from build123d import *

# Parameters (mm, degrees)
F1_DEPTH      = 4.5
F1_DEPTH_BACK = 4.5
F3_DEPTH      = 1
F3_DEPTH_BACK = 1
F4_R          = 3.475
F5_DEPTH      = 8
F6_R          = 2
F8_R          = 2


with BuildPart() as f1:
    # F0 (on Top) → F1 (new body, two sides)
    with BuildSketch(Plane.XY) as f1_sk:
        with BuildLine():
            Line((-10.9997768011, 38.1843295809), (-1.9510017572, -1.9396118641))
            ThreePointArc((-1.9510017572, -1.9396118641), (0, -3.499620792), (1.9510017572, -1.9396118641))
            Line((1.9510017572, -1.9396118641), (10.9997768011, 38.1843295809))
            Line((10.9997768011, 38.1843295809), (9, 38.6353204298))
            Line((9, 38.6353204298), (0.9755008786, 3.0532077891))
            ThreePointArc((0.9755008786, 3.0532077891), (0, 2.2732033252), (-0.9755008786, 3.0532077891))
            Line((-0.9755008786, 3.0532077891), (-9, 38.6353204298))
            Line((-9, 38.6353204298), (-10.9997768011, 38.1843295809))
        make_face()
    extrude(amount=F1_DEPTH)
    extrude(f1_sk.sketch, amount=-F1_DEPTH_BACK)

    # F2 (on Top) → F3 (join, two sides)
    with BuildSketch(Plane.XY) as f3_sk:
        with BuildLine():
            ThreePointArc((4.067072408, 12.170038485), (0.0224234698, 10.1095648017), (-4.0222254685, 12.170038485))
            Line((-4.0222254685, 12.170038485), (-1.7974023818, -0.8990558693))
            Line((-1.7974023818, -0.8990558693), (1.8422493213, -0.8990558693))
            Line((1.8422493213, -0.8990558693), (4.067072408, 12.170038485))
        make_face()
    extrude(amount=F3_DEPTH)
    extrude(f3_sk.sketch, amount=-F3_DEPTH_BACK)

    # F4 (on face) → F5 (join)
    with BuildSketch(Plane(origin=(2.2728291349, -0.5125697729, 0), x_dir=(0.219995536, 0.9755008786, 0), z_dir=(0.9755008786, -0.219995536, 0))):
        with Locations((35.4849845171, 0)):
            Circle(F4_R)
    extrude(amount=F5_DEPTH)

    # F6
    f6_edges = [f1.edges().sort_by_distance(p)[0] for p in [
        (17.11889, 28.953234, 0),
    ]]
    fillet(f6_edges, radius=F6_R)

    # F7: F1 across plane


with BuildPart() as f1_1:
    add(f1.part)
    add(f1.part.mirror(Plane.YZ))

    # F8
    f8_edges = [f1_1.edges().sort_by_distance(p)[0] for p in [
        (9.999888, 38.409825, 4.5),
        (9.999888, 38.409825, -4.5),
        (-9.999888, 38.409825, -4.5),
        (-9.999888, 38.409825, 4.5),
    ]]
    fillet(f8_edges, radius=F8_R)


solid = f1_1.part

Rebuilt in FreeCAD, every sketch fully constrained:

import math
import FreeCAD as App
import Part
import Sketcher

V = App.Vector
Q = App.Units.Quantity


def edges_at(feature, points):
    """Names of the edges that pass closest to the given points."""
    edges = feature.Shape.Edges
    near = lambda p: min(range(len(edges)), key=lambda i: edges[i].distToShape(Part.Vertex(*p))[0])
    return sorted({f"Edge{near(p) + 1}" for p in points})

doc = App.newDocument("Part")
body = doc.addObject("PartDesign::Body", "Body")

# Sketch on XY plane
sketch1 = body.newObject("Sketcher::SketchObject", "Sketch")
sketch1.AttachmentSupport = (doc.getObject("XY_Plane"), [""])
sketch1.MapMode = "FlatFace"
sketch1.addGeometry([
    Part.LineSegment(V(-11, 38.2, 0), V(-2, -1.9, 0)),  # 0
    Part.ArcOfCircle(Part.Circle(V(0, -1.5, 0), V(0, 0, 1), 2), math.radians(-167), math.radians(-13)),  # 1
    Part.LineSegment(V(2, -1.9, 0), V(11, 38.2, 0)),  # 2
    Part.LineSegment(V(11, 38.2, 0), V(9, 38.6, 0)),  # 3
    Part.LineSegment(V(9, 38.6, 0), V(1, 3.1, 0)),  # 4
    Part.ArcOfCircle(Part.Circle(V(0, 3.3, 0), V(0, 0, 1), 1), math.radians(-167), math.radians(-13)),  # 5
    Part.LineSegment(V(-1, 3.1, 0), V(-9, 38.6, 0)),  # 6
    Part.LineSegment(V(-9, 38.6, 0), V(-11, 38.2, 0)),  # 7
], False)
sketch1.addConstraint([
    Sketcher.Constraint("Tangent", 0, 2, 1, 1),
    Sketcher.Constraint("Tangent", 1, 2, 2, 1),
    Sketcher.Constraint("Coincident", 2, 2, 3, 1),
    Sketcher.Constraint("Coincident", 3, 2, 4, 1),
    Sketcher.Constraint("Tangent", 4, 2, 5, 2),
    Sketcher.Constraint("Tangent", 5, 1, 6, 1),
    Sketcher.Constraint("Coincident", 6, 2, 7, 1),
    Sketcher.Constraint("Coincident", 7, 2, 0, 1),
    Sketcher.Constraint("Symmetric", 0, 2, 1, 2, -2),
    Sketcher.Constraint("Symmetric", 4, 2, 5, 1, -2),
    Sketcher.Constraint("Perpendicular", 2, 3),
    Sketcher.Constraint("Perpendicular", 3, 4),
    Sketcher.Constraint("Perpendicular", 6, 7),
    Sketcher.Constraint("Horizontal", 3, 2, 6, 2),
    Sketcher.Constraint("Radius", 1, Q("2 mm")),
    Sketcher.Constraint("Radius", 5, Q("1 mm")),
    Sketcher.Constraint("DistanceX", -1, 1, 3, 2, Q("9 mm")),
    Sketcher.Constraint("Distance", 3, Q("2.05 mm")),
    Sketcher.Constraint("Distance", 0, Q("41.13163 mm")),
    Sketcher.Constraint("DistanceY", 1, 3, -1, 1, Q("1.499621 mm")),
])
pad1 = body.newObject("PartDesign::Pad", "Pad")
pad1.Profile = sketch1
pad1.Type = "TwoLengths"
pad1.Length = 4.5
pad1.Length2 = 4.5

# Sketch on XY plane
sketch2 = body.newObject("Sketcher::SketchObject", "Sketch001")
sketch2.AttachmentSupport = (doc.getObject("XY_Plane"), [""])
sketch2.MapMode = "FlatFace"
sketch2.addGeometry([
    Part.ArcOfCircle(Part.Circle(V(0, 15.1, 0), V(0, 0, 1), 5), math.radians(-144), math.radians(-36)),
    Part.LineSegment(V(-4, 12.2, 0), V(-1.8, -0.9, 0)),
    Part.LineSegment(V(-1.8, -0.9, 0), V(1.8, -0.9, 0)),
    Part.LineSegment(V(1.8, -0.9, 0), V(4.1, 12.2, 0)),
], False)
sketch2.addConstraint([
    Sketcher.Constraint("Coincident", 0, 1, 1, 1),
    Sketcher.Constraint("Coincident", 1, 2, 2, 1),
    Sketcher.Constraint("Coincident", 2, 2, 3, 1),
    Sketcher.Constraint("Coincident", 3, 2, 0, 2),
    Sketcher.Constraint("Horizontal", 2),
    Sketcher.Constraint("Horizontal", 0, 1, 3, 2),
    Sketcher.Constraint("Equal", 1, 3),
    Sketcher.Constraint("Radius", 0, Q("5 mm")),
    Sketcher.Constraint("DistanceX", 2, 1, 2, 2, Q("3.639652 mm")),
    Sketcher.Constraint("DistanceY", -1, 1, 0, 1, Q("12.170038 mm")),
    Sketcher.Constraint("DistanceX", -1, 1, 2, 2, Q("1.842249 mm")),
    Sketcher.Constraint("DistanceX", 0, 1, 0, 3, Q("4.044649 mm")),
    Sketcher.Constraint("DistanceY", 1, 2, 0, 3, Q("16.008621 mm")),
])
pad2 = body.newObject("PartDesign::Pad", "Pad001")
pad2.Profile = sketch2
pad2.Type = "TwoLengths"
pad2.Length = 1
pad2.Length2 = 1

# Sketch on an angled plane
sketch3 = body.newObject("Sketcher::SketchObject", "Sketch002")
sketch3.Placement = App.Placement(V(2.272829, -0.51257, 0), App.Rotation(V(0.219995536, 0.975500879, 0), V(0, 0, 1.000000001), V(0.975500879, -0.219995536, 0), "ZXY"))
sketch3.addGeometry(Part.Circle(V(35.5, 0, 0), V(0, 0, 1), 3.5), False)
sketch3.addConstraint([
    Sketcher.Constraint("PointOnObject", 0, 3, -1),
    Sketcher.Constraint("Diameter", 0, Q("6.95 mm")),
    Sketcher.Constraint("DistanceX", -1, 1, 0, 3, Q("35.484985 mm")),
])
pad3 = body.newObject("PartDesign::Pad", "Pad002")
pad3.Profile = sketch3
pad3.Length = 8
doc.recompute()

fillet = body.newObject("PartDesign::Fillet", "Fillet")
fillet.Base = (pad3, edges_at(pad3, [(17.119, 28.953, 0)]))
fillet.Radius = 2
body2 = doc.addObject("PartDesign::Body", "Body001")
doc.recompute()

body2.BaseFeature = body
doc.recompute()

mirroring = doc.addObject("Part::Mirroring", "Mirroring")
mirroring.Source = body
mirroring.Base = V(0, 0, 0)
mirroring.Normal = V(1, 0, 0)
body3 = doc.addObject("PartDesign::Body", "Body002")
body3.BaseFeature = mirroring
boolean = body2.newObject("PartDesign::Boolean", "Boolean")
boolean.Type = "Fuse"
boolean.addObjects([body3])
doc.recompute()

fillet2 = body2.newObject("PartDesign::Fillet", "Fillet001")
fillet2.Base = (boolean, edges_at(boolean, [
    (10, 38.41, 4.5),
    (10, 38.41, -4.5),
    (-10, 38.41, -4.5),
    (-10, 38.41, 4.5),
]))
fillet2.Radius = 2
mirroring.Visibility = False

doc.recompute()
